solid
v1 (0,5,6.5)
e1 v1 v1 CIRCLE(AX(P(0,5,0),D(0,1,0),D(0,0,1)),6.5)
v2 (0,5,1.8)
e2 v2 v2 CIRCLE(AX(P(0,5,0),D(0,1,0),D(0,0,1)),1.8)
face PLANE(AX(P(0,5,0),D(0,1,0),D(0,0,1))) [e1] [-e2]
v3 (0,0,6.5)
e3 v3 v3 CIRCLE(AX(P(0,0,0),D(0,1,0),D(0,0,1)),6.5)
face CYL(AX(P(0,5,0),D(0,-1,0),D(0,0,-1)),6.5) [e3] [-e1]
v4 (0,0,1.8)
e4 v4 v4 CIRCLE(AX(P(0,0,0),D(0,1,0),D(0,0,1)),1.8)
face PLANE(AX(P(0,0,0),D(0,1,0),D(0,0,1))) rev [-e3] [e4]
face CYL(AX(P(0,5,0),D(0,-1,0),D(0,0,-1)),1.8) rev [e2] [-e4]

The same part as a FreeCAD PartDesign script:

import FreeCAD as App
import Part
import Sketcher
from FreeCAD import Vector

doc = App.newDocument("Part")
params = doc.addObject("Spreadsheet::Sheet", "Params")
for row, (alias, value) in enumerate([
    ("sketch1_diameter", "13 mm"),
    ("sketch1_diameter2", "3.6 mm"),
    ("pad1_length", "5 mm"),
], start=1):
    params.set(f"A{row}", alias)
    params.set(f"B{row}", "=" + value)
    params.setAlias(f"B{row}", alias)

body = doc.addObject("PartDesign::Body", "Body")

sketch1 = body.newObject("Sketcher::SketchObject", "Sketch")
sketch1.AttachmentSupport = (doc.getObject("XZ_Plane"), [""])
sketch1.MapMode = "FlatFace"
sketch1.addGeometry([
    Part.Circle(Vector(0, 0, 0), Vector(0, 0, 1), 6.5),
    Part.Circle(Vector(0, 0, 0), Vector(0, 0, 1), 1.8),
], False)
sketch1.addConstraint([
    Sketcher.Constraint("Coincident", 0, 3, -1, 1),
    Sketcher.Constraint("Coincident", 1, 3, -1, 1),
    Sketcher.Constraint("Diameter", 0, 13.0),
    Sketcher.Constraint("Diameter", 1, 3.6),
])
sketch1.setExpression("Constraints[2]", "Params.sketch1_diameter")
sketch1.setExpression("Constraints[3]", "Params.sketch1_diameter2")
pad1 = body.newObject("PartDesign::Pad", "Pad")
pad1.Profile = sketch1
pad1.setExpression("Length", "Params.pad1_length")
pad1.Reversed = True

doc.recompute()
